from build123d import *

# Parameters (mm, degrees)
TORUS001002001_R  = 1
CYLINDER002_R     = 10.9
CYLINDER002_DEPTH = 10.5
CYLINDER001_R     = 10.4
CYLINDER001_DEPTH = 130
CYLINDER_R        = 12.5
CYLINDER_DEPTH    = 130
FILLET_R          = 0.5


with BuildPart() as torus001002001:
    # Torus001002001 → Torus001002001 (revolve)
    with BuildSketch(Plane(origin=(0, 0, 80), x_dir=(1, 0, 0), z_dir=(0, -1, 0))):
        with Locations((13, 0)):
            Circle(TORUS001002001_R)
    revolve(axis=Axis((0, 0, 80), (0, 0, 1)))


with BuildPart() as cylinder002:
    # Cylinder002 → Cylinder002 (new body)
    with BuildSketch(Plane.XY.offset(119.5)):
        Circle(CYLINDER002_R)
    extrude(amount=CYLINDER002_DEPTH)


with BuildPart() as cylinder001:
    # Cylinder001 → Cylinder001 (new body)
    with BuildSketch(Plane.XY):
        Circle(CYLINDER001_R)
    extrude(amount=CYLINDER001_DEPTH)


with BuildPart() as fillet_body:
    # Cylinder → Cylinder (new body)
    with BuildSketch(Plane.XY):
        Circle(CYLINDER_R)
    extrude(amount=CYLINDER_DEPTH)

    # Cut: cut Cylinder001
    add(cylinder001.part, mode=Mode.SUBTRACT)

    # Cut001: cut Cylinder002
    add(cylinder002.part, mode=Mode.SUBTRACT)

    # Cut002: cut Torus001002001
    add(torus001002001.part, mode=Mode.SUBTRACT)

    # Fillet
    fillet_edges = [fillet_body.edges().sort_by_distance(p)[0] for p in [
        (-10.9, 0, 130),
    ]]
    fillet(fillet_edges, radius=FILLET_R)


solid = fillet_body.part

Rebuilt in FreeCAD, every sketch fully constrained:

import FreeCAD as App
import Part
import Sketcher


def edges_at(feature, points):
    """Names of the edges that pass closest to the given points."""
    edges = feature.Shape.Edges
    near = lambda p: min(range(len(edges)), key=lambda i: edges[i].distToShape(Part.Vertex(*p))[0])
    return sorted({f"Edge{near(p) + 1}" for p in points})

doc = App.newDocument("Part")
body = doc.addObject("PartDesign::Body", "Body")

# Sketch on XZ plane
sketch1 = body.newObject("Sketcher::SketchObject", "Sketch")
sketch1.AttachmentSupport = (doc.getObject("XZ_Plane"), [""])
sketch1.MapMode = "FlatFace"
sketch1.addGeometry(Part.Circle(App.Vector(13, 80, 0), App.Vector(0, 0, 1), 1), False)
sketch1.addConstraint(Sketcher.Constraint("Diameter", 0, 2.0))
sketch1.addConstraint(Sketcher.Constraint("DistanceX", -1, 1, 0, 3, 13.0))
sketch1.addConstraint(Sketcher.Constraint("DistanceY", -1, 1, 0, 3, 80.0))
revolution = body.newObject("PartDesign::Revolution", "Revolution")
revolution.Profile = sketch1
revolution.ReferenceAxis = (sketch1, ["V_Axis"])
revolution.Angle = 360
body2 = doc.addObject("PartDesign::Body", "Body001")

# Sketch on XY plane
sketch2 = body2.newObject("Sketcher::SketchObject", "Sketch001")
sketch2.AttachmentSupport = (doc.getObject("XY_Plane001"), [""])
sketch2.MapMode = "FlatFace"
sketch2.AttachmentOffset = App.Placement(App.Vector(0, 0, 119.5), App.Rotation())
sketch2.addGeometry(Part.Circle(App.Vector(0, 0, 0), App.Vector(0, 0, 1), 11), False)
sketch2.addConstraint(Sketcher.Constraint("Coincident", 0, 3, -1, 1))
sketch2.addConstraint(Sketcher.Constraint("Diameter", 0, 21.8))
pad1 = body2.newObject("PartDesign::Pad", "Pad")
pad1.Profile = sketch2
pad1.Length = 10.5
body3 = doc.addObject("PartDesign::Body", "Body002")

# Sketch on XY plane
sketch3 = body3.newObject("Sketcher::SketchObject", "Sketch002")
sketch3.AttachmentSupport = (doc.getObject("XY_Plane002"), [""])
sketch3.MapMode = "FlatFace"
sketch3.addGeometry(Part.Circle(App.Vector(0, 0, 0), App.Vector(0, 0, 1), 10), False)
sketch3.addConstraint(Sketcher.Constraint("Coincident", 0, 3, -1, 1))
sketch3.addConstraint(Sketcher.Constraint("Diameter", 0, 20.8))
pad2 = body3.newObject("PartDesign::Pad", "Pad001")
pad2.Profile = sketch3
pad2.Length = 130
body4 = doc.addObject("PartDesign::Body", "Body003")

# Sketch on XY plane
sketch4 = body4.newObject("Sketcher::SketchObject", "Sketch003")
sketch4.AttachmentSupport = (doc.getObject("XY_Plane003"), [""])
sketch4.MapMode = "FlatFace"
sketch4.addGeometry(Part.Circle(App.Vector(0, 0, 0), App.Vector(0, 0, 1), 12), False)
sketch4.addConstraint(Sketcher.Constraint("Coincident", 0, 3, -1, 1))
sketch4.addConstraint(Sketcher.Constraint("Diameter", 0, 25.0))
pad3 = body4.newObject("PartDesign::Pad", "Pad002")
pad3.Profile = sketch4
pad3.Length = 130
doc.recompute()

boolean = body4.newObject("PartDesign::Boolean", "Boolean")
boolean.Type = "Cut"
boolean.addObjects([body3])
doc.recompute()

boolean2 = body4.newObject("PartDesign::Boolean", "Boolean001")
boolean2.Type = "Cut"
boolean2.addObjects([body2])
doc.recompute()

boolean3 = body4.newObject("PartDesign::Boolean", "Boolean002")
boolean3.Type = "Cut"
boolean3.addObjects([body])
doc.recompute()

fillet = body4.newObject("PartDesign::Fillet", "Fillet")
fillet.Base = (boolean3, edges_at(boolean3, [(-10.9, 0, 130)]))
fillet.Radius = 0.5

doc.recompute()
